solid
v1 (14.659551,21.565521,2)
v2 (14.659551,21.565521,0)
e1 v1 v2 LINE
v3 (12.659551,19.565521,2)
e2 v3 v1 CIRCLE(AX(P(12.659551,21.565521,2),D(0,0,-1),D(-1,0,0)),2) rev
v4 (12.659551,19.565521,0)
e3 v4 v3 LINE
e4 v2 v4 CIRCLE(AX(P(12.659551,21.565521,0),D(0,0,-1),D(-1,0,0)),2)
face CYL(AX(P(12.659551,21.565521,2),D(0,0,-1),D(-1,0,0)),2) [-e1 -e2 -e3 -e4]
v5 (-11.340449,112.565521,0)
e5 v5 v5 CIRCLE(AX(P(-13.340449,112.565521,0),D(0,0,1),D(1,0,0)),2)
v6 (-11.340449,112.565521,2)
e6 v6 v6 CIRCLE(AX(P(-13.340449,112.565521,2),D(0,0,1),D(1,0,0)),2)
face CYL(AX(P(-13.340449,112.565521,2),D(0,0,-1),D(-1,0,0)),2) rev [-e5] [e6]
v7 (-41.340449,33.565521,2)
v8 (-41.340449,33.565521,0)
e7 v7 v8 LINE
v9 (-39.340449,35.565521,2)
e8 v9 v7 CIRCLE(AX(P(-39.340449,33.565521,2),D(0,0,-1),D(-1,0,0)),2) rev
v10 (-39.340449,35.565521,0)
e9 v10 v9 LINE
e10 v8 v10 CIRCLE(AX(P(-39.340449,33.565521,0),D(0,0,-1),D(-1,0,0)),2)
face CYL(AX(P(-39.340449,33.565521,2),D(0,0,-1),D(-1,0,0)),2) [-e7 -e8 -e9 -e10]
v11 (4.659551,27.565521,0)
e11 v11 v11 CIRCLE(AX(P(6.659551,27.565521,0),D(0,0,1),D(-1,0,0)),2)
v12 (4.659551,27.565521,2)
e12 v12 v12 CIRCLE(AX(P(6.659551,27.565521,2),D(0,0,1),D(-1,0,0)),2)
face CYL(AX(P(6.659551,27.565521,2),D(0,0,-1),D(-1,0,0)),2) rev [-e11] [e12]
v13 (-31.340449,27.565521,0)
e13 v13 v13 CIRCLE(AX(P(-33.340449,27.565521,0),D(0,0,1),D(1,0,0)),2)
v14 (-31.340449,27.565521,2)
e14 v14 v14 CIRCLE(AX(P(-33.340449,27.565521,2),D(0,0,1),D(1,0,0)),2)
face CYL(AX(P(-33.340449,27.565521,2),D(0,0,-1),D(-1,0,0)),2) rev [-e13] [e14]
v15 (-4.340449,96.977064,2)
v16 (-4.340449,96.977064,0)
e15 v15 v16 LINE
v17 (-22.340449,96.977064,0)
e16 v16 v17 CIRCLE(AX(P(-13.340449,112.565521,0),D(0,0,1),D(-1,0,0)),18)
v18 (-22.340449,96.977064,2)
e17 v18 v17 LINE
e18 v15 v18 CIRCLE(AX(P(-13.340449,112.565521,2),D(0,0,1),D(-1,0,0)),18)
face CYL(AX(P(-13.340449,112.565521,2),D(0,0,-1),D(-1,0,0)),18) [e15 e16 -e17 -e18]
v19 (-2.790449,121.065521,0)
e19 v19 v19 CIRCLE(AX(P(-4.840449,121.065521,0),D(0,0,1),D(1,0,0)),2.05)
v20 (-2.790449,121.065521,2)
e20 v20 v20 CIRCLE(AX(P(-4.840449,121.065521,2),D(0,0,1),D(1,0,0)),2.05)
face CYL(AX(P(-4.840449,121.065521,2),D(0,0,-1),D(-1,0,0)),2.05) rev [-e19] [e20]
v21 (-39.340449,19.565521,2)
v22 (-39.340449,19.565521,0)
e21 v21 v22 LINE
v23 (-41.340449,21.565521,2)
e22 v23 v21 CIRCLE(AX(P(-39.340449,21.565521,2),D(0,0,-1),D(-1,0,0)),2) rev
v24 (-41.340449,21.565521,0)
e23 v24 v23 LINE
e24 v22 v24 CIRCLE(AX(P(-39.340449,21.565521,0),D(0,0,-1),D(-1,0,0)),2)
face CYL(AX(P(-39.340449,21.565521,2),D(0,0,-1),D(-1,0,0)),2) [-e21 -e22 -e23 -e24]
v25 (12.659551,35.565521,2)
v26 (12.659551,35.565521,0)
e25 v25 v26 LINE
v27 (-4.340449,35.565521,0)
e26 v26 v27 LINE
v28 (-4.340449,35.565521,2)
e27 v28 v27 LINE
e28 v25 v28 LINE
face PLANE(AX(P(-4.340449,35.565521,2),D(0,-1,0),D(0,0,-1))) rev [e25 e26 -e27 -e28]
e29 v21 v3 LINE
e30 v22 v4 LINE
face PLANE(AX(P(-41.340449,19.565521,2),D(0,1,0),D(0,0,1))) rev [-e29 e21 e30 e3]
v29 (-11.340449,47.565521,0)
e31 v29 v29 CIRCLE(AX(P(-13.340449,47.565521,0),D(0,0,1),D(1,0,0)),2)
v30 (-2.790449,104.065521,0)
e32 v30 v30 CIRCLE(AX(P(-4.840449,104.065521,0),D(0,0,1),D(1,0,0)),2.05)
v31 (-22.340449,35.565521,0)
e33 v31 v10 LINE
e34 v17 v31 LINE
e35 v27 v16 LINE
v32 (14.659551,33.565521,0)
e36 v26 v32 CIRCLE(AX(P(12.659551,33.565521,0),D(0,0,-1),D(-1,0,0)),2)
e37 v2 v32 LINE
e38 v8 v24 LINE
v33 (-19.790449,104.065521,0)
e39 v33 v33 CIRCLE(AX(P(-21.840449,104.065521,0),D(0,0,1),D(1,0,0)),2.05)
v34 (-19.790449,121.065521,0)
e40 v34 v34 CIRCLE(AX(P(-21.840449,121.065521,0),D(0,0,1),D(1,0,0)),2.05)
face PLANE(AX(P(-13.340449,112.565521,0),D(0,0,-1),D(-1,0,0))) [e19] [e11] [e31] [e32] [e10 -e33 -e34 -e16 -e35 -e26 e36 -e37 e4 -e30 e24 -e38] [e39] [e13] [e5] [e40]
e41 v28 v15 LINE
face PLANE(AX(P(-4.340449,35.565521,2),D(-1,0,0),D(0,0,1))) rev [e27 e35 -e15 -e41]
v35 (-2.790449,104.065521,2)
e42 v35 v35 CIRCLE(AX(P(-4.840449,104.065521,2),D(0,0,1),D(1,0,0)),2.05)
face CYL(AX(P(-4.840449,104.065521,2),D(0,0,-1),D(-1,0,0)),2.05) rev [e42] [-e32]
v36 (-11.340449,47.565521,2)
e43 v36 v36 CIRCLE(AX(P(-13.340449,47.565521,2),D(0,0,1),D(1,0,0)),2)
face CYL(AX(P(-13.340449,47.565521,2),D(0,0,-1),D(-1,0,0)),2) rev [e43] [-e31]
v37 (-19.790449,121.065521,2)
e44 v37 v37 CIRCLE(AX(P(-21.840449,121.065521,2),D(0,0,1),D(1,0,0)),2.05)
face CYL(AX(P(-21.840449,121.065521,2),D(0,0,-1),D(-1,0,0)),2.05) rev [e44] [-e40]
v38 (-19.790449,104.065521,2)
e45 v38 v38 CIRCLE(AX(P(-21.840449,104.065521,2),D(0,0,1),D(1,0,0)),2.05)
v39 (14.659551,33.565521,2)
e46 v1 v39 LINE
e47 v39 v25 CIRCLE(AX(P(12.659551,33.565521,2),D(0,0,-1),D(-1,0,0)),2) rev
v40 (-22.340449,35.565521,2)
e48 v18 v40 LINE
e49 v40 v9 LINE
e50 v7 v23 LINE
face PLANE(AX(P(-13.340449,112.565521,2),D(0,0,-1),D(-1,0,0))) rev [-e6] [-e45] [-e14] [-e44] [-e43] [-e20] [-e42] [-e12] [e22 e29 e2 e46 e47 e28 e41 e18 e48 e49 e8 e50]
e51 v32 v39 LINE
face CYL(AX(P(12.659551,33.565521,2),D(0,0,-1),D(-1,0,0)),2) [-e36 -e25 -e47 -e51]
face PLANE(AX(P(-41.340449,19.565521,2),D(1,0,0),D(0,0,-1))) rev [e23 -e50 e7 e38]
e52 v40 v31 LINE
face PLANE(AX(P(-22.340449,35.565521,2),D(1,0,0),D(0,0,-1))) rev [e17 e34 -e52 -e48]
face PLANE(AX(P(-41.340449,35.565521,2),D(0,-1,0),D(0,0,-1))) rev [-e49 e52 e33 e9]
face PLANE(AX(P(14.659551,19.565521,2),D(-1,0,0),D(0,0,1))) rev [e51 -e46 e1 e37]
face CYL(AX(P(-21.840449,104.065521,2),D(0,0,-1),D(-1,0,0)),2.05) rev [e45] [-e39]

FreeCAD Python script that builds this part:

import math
import FreeCAD as App
import Part
import Sketcher

V = App.Vector


def edges_at(feature, points):
    """Names of the edges that pass closest to the given points."""
    edges = feature.Shape.Edges
    near = lambda p: min(range(len(edges)), key=lambda i: edges[i].distToShape(Part.Vertex(*p))[0])
    return sorted({f"Edge{near(p) + 1}" for p in points})

doc = App.newDocument("Part")
body = doc.addObject("PartDesign::Body", "Body")

sketch1 = body.newObject("Sketcher::SketchObject", "Sketch")
sketch1.AttachmentSupport = (doc.getObject("XY_Plane"), [""])
sketch1.MapMode = "FlatFace"
sketch1.addGeometry(Part.LineSegment(V(14.7, 19.6, 0), V(14.7, 35.6, 0)), False)
sketch1.addGeometry(Part.LineSegment(V(14.7, 35.6, 0), V(-4.3, 35.6, 0)), False)
sketch1.addGeometry(Part.LineSegment(V(-4.3, 35.6, 0), V(-4.3, 97, 0)), False)
sketch1.addGeometry(Part.ArcOfCircle(Part.Circle(V(-13.3, 112.6, 0), V(0, 0, 1), 18), math.radians(-60), math.radians(240)), False)
sketch1.addGeometry(Part.LineSegment(V(-22.3, 97, 0), V(-22.3, 35.6, 0)), False)
sketch1.addGeometry(Part.LineSegment(V(-22.3, 35.6, 0), V(-41.3, 35.6, 0)), False)
sketch1.addGeometry(Part.LineSegment(V(-41.3, 35.6, 0), V(-41.3, 19.6, 0)), False)
sketch1.addGeometry(Part.LineSegment(V(-41.3, 19.6, 0), V(14.7, 19.6, 0)), False)
sketch1.addGeometry(Part.Circle(V(-33.3, 27.6, 0), V(0, 0, 1), 2), False)
sketch1.addGeometry(Part.Circle(V(-13.3, 47.6, 0), V(0, 0, 1), 2), False)
sketch1.addGeometry(Part.Circle(V(6.7, 27.6, 0), V(0, 0, 1), 2), False)
sketch1.addGeometry(Part.Circle(V(-21.8, 104.1, 0), V(0, 0, 1), 2), False)
sketch1.addGeometry(Part.Circle(V(-21.8, 121.1, 0), V(0, 0, 1), 2), False)
sketch1.addGeometry(Part.Circle(V(-4.8, 104.1, 0), V(0, 0, 1), 2), False)
sketch1.addGeometry(Part.Circle(V(-13.3, 112.6, 0), V(0, 0, 1), 2), False)
sketch1.addGeometry(Part.Circle(V(-4.8, 121.1, 0), V(0, 0, 1), 2), False)
sketch1.addConstraint(Sketcher.Constraint("Coincident", 0, 2, 1, 1))
sketch1.addConstraint(Sketcher.Constraint("Coincident", 1, 2, 2, 1))
sketch1.addConstraint(Sketcher.Constraint("Coincident", 2, 2, 3, 1))
sketch1.addConstraint(Sketcher.Constraint("Coincident", 3, 2, 4, 1))
sketch1.addConstraint(Sketcher.Constraint("Coincident", 4, 2, 5, 1))
sketch1.addConstraint(Sketcher.Constraint("Coincident", 5, 2, 6, 1))
sketch1.addConstraint(Sketcher.Constraint("Coincident", 6, 2, 7, 1))
sketch1.addConstraint(Sketcher.Constraint("Coincident", 7, 2, 0, 1))
sketch1.addConstraint(Sketcher.Constraint("Vertical", 0))
sketch1.addConstraint(Sketcher.Constraint("Horizontal", 1))
sketch1.addConstraint(Sketcher.Constraint("Vertical", 2))
sketch1.addConstraint(Sketcher.Constraint("Vertical", 4))
sketch1.addConstraint(Sketcher.Constraint("Horizontal", 5))
sketch1.addConstraint(Sketcher.Constraint("Vertical", 6))
sketch1.addConstraint(Sketcher.Constraint("Horizontal", 7))
sketch1.addConstraint(Sketcher.Constraint("Coincident", 14, 3, 3, 3))
sketch1.addConstraint(Sketcher.Constraint("Equal", 8, 9))
sketch1.addConstraint(Sketcher.Constraint("Equal", 9, 10))
sketch1.addConstraint(Sketcher.Constraint("Equal", 11, 12))
sketch1.addConstraint(Sketcher.Constraint("Equal", 12, 13))
sketch1.addConstraint(Sketcher.Constraint("Equal", 10, 14))
sketch1.addConstraint(Sketcher.Constraint("Equal", 13, 15))
sketch1.addConstraint(Sketcher.Constraint("Horizontal", 8, 3, 10, 3))
sketch1.addConstraint(Sketcher.Constraint("Horizontal", 11, 3, 13, 3))
sketch1.addConstraint(Sketcher.Constraint("Horizontal", 12, 3, 15, 3))
sketch1.addConstraint(Sketcher.Constraint("Horizontal", 2, 2, 3, 2))
sketch1.addConstraint(Sketcher.Constraint("Horizontal", 1, 2, 4, 2))
sketch1.addConstraint(Sketcher.Constraint("Vertical", 3, 3, 9, 3))
sketch1.addConstraint(Sketcher.Constraint("Vertical", 11, 3, 12, 3))
sketch1.addConstraint(Sketcher.Constraint("Vertical", 13, 3, 15, 3))
sketch1.addConstraint(Sketcher.Constraint("Equal", 1, 5))
sketch1.addConstraint(Sketcher.Constraint("Diameter", 8, 4.0))
sketch1.addConstraint(Sketcher.Constraint("Radius", 3, 18.0))
sketch1.addConstraint(Sketcher.Constraint("Diameter", 11, 4.1))
sketch1.addConstraint(Sketcher.Constraint("DistanceX", 1, 2, 1, 1, 19.0))
sketch1.addConstraint(Sketcher.Constraint("DistanceX", 7, 1, 7, 2, 56.0))
sketch1.addConstraint(Sketcher.Constraint("DistanceY", 0, 1, 0, 2, 16.0))
sketch1.addConstraint(Sketcher.Constraint("DistanceX", 8, 3, 3, 3, 20.0))
sketch1.addConstraint(Sketcher.Constraint("DistanceY", 8, 3, 3, 3, 85.0))
sketch1.addConstraint(Sketcher.Constraint("DistanceY", 8, 3, 9, 3, 20.0))
sketch1.addConstraint(Sketcher.Constraint("DistanceX", 9, 3, 10, 3, 20.0))
sketch1.addConstraint(Sketcher.Constraint("DistanceY", 11, 3, 12, 3, 17.0))
sketch1.addConstraint(Sketcher.Constraint("DistanceX", 11, 3, 13, 3, 17.0))
sketch1.addConstraint(Sketcher.Constraint("DistanceY", 10, 3, 0, 2, 8.0))
sketch1.addConstraint(Sketcher.Constraint("DistanceX", 11, 3, 3, 3, 8.5))
sketch1.addConstraint(Sketcher.Constraint("DistanceY", 11, 3, 3, 3, 8.5))
sketch1.addConstraint(Sketcher.Constraint("DistanceX", 3, 3, -1, 1, 13.340449))
sketch1.addConstraint(Sketcher.Constraint("DistanceY", -1, 1, 3, 3, 112.565521))
pad1 = body.newObject("PartDesign::Pad", "Pad")
pad1.Profile = sketch1
pad1.Length = 2
doc.recompute()

fillet = body.newObject("PartDesign::Fillet", "Fillet")
fillet.Base = (pad1, edges_at(pad1, [
    (-41.34, 19.566, 1),
    (-41.34, 35.566, 1),
    (14.66, 35.566, 1),
    (14.66, 19.566, 1),
]))
fillet.Radius = 2

doc.recompute()
